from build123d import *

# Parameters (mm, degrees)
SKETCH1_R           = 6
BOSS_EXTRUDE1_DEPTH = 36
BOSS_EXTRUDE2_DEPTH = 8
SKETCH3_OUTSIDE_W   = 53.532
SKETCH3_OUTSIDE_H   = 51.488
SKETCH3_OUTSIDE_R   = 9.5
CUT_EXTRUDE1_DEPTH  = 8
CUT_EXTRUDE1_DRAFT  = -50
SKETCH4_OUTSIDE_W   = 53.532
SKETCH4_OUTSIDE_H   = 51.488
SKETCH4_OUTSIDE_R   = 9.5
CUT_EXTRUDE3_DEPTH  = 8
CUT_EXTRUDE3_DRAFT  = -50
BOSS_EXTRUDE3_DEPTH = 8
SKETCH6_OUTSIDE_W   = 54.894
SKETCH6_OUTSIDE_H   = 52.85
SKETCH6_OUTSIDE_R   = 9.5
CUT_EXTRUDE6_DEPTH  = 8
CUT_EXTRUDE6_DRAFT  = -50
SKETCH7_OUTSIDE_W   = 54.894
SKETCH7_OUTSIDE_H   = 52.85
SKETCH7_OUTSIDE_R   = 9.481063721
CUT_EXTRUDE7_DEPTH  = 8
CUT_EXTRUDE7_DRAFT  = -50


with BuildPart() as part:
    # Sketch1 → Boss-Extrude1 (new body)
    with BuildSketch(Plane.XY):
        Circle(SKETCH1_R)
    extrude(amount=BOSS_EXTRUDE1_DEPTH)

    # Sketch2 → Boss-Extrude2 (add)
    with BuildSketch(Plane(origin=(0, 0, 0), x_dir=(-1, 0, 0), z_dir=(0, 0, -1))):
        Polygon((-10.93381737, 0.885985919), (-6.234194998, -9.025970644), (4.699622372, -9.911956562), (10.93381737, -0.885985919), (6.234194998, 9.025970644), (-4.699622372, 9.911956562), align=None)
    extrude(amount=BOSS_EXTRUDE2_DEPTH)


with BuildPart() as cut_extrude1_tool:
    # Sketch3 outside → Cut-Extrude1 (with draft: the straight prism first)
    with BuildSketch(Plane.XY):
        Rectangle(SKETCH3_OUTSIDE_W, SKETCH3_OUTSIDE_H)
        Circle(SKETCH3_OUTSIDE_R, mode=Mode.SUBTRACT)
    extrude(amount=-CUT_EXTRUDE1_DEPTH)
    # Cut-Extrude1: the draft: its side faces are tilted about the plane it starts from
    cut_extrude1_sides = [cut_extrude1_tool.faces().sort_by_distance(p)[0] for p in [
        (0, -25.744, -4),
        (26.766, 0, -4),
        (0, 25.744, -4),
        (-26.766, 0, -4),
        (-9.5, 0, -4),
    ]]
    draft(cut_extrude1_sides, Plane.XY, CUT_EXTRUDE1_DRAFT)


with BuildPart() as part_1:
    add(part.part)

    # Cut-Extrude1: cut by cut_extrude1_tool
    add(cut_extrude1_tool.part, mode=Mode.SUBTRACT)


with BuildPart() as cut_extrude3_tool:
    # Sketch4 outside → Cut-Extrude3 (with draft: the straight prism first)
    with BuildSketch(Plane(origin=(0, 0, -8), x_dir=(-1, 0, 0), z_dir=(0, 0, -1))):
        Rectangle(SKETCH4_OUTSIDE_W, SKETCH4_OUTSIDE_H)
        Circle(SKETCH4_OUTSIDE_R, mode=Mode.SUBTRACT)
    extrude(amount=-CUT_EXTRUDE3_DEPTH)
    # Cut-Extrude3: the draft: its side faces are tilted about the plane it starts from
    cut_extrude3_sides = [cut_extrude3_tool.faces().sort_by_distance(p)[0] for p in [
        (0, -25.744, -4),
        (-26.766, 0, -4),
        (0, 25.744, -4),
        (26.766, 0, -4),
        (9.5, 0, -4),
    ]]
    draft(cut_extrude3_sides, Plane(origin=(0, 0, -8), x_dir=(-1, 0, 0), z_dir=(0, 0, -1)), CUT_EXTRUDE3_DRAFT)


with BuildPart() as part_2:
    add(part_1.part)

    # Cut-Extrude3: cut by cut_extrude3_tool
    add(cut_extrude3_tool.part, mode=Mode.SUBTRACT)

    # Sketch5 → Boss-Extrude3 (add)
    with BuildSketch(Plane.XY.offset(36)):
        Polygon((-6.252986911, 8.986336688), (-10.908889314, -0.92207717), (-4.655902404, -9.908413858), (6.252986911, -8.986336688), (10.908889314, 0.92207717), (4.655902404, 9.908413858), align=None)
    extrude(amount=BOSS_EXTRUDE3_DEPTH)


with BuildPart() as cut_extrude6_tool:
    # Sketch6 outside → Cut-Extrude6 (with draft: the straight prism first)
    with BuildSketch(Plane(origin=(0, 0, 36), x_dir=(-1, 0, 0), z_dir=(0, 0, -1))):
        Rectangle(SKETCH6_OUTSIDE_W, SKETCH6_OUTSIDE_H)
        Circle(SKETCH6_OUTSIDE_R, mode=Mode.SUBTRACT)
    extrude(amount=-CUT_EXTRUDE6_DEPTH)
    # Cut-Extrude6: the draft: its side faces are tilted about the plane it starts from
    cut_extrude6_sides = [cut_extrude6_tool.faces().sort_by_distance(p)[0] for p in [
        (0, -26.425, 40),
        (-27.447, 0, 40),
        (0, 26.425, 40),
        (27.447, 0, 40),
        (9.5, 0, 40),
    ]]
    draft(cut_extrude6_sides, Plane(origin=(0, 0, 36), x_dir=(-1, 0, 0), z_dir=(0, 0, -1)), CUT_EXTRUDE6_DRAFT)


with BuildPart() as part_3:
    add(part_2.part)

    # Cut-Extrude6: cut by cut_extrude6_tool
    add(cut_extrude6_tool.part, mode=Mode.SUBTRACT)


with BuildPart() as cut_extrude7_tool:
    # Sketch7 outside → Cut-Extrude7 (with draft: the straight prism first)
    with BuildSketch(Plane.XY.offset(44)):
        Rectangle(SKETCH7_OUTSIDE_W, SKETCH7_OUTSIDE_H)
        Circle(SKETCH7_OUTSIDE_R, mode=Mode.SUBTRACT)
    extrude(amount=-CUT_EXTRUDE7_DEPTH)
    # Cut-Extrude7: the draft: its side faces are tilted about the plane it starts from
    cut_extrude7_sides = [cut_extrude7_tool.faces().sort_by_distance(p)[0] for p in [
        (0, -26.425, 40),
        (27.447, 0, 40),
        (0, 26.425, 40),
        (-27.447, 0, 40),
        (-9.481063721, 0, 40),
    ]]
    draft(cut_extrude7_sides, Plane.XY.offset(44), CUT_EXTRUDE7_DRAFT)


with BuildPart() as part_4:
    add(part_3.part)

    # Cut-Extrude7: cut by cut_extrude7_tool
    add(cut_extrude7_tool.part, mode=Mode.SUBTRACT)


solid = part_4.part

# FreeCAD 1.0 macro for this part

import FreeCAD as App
import Part
import Sketcher
from FreeCAD import Vector


def faces_at(feature, points):
    """Names of the faces that lie closest to the given points."""
    faces = feature.Shape.Faces
    near = lambda p: min(range(len(faces)), key=lambda i: faces[i].distToShape(Part.Vertex(*p))[0])
    return sorted({f"Face{near(p) + 1}" for p in points})

doc = App.newDocument("Part")
body = doc.addObject("PartDesign::Body", "Body")

# Sketch on XY plane
sketch1 = body.newObject("Sketcher::SketchObject", "Sketch")
sketch1.AttachmentSupport = (doc.getObject("XY_Plane"), [""])
sketch1.MapMode = "FlatFace"
sketch1.addGeometry(Part.Circle(Vector(0, 0, 0), Vector(0, 0, 1), 6), False)
sketch1.addConstraint([
    Sketcher.Constraint("Coincident", 0, 3, -1, 1),
    Sketcher.Constraint("Diameter", 0, 12.0),
])
pad1 = body.newObject("PartDesign::Pad", "Pad")
pad1.Profile = sketch1
pad1.Length = 36

# Sketch on XY plane
sketch2 = body.newObject("Sketcher::SketchObject", "Sketch001")
sketch2.AttachmentSupport = (doc.getObject("XY_Plane"), [""])
sketch2.MapMode = "FlatFace"
sketch2.addGeometry([
    Part.LineSegment(Vector(11, 1, 0), Vector(6, -9, 0)),  # 0
    Part.LineSegment(Vector(6, -9, 0), Vector(-5, -10, 0)),  # 1
    Part.LineSegment(Vector(-5, -10, 0), Vector(-11, -1, 0)),  # 2
    Part.LineSegment(Vector(-11, -1, 0), Vector(-6, 9, 0)),  # 3
    Part.LineSegment(Vector(-6, 9, 0), Vector(5, 10, 0)),  # 4
    Part.LineSegment(Vector(5, 10, 0), Vector(11, 1, 0)),  # 5
], False)
sketch2.addConstraint([
    Sketcher.Constraint("Coincident", 0, 2, 1, 1),
    Sketcher.Constraint("Coincident", 1, 2, 2, 1),
    Sketcher.Constraint("Coincident", 2, 2, 3, 1),
    Sketcher.Constraint("Coincident", 3, 2, 4, 1),
    Sketcher.Constraint("Coincident", 4, 2, 5, 1),
    Sketcher.Constraint("Coincident", 5, 2, 0, 1),
    Sketcher.Constraint("Symmetric", 0, 2, 3, 2, -1, 1),
    Sketcher.Constraint("Symmetric", 1, 2, 4, 2, -1, 1),
    Sketcher.Constraint("Symmetric", 2, 2, 5, 2, -1, 1),
    Sketcher.Constraint("Equal", 0, 1),
    Sketcher.Constraint("Equal", 1, 2),
    Sketcher.Constraint("DistanceY", 0, 2, -1, 1, 9.025971),
    Sketcher.Constraint("DistanceY", 1, 2, 2, 2, 9.025971),
    Sketcher.Constraint("DistanceX", 3, 2, 0, 2, 12.46839),
    Sketcher.Constraint("DistanceX", 2, 2, 4, 2, 15.63344),
])
pad2 = body.newObject("PartDesign::Pad", "Pad001")
pad2.Profile = sketch2
pad2.Length = 8
pad2.Reversed = True
body2 = doc.addObject("PartDesign::Body", "Body001")

# Sketch on XY plane
sketch3 = body2.newObject("Sketcher::SketchObject", "Sketch002")
sketch3.AttachmentSupport = (doc.getObject("XY_Plane001"), [""])
sketch3.MapMode = "FlatFace"
sketch3.addGeometry([
    Part.LineSegment(Vector(-27, 26, 0), Vector(-27, -26, 0)),  # 0
    Part.LineSegment(Vector(-27, -26, 0), Vector(27, -26, 0)),  # 1
    Part.LineSegment(Vector(27, -26, 0), Vector(27, 26, 0)),  # 2
    Part.LineSegment(Vector(27, 26, 0), Vector(-27, 26, 0)),  # 3
    Part.Circle(Vector(0, 0, 0), Vector(0, 0, 1), 10),  # 4
], False)
sketch3.addConstraint([
    Sketcher.Constraint("Coincident", 0, 2, 1, 1),
    Sketcher.Constraint("Coincident", 1, 2, 2, 1),
    Sketcher.Constraint("Coincident", 2, 2, 3, 1),
    Sketcher.Constraint("Coincident", 3, 2, 0, 1),
    Sketcher.Constraint("Vertical", 0),
    Sketcher.Constraint("Horizontal", 1),
    Sketcher.Constraint("Vertical", 2),
    Sketcher.Constraint("Horizontal", 3),
    Sketcher.Constraint("Coincident", 4, 3, -1, 1),
    Sketcher.Constraint("Symmetric", 0, 2, 2, 2, -1, 1),
    Sketcher.Constraint("Diameter", 4, 19.0),
    Sketcher.Constraint("DistanceX", 1, 1, 1, 2, 53.532),
    Sketcher.Constraint("DistanceY", 0, 2, 0, 1, 51.488),
])
pad3 = body2.newObject("PartDesign::Pad", "Pad002")
pad3.Profile = sketch3
pad3.Length = 8
pad3.Reversed = True
doc.recompute()

draft = body2.newObject("PartDesign::Draft", "Draft")
draft.Base = (pad3, faces_at(pad3, [
    (0, -25.744, -4),
    (26.766, 0, -4),
    (0, 25.744, -4),
    (-26.766, 0, -4),
    (-9.5, 0, -4),
]))
draft.NeutralPlane = (doc.getObject("XY_Plane001"), [""])
draft.Angle = 50
draft.Reversed = True
doc.recompute()

boolean = body.newObject("PartDesign::Boolean", "Boolean")
boolean.Type = "Cut"
boolean.addObjects([body2])
body3 = doc.addObject("PartDesign::Body", "Body002")

# Sketch on XY plane
sketch4 = body3.newObject("Sketcher::SketchObject", "Sketch003")
sketch4.AttachmentSupport = (doc.getObject("XY_Plane002"), [""])
sketch4.MapMode = "FlatFace"
sketch4.AttachmentOffset = App.Placement(Vector(0, 0, -8), App.Rotation())
sketch4.addGeometry([
    Part.LineSegment(Vector(27, 26, 0), Vector(27, -26, 0)),  # 0
    Part.LineSegment(Vector(27, -26, 0), Vector(-27, -26, 0)),  # 1
    Part.LineSegment(Vector(-27, -26, 0), Vector(-27, 26, 0)),  # 2
    Part.LineSegment(Vector(-27, 26, 0), Vector(27, 26, 0)),  # 3
    Part.Circle(Vector(0, 0, 0), Vector(0, 0, 1), 10),  # 4
], False)
sketch4.addConstraint([
    Sketcher.Constraint("Coincident", 0, 2, 1, 1),
    Sketcher.Constraint("Coincident", 1, 2, 2, 1),
    Sketcher.Constraint("Coincident", 2, 2, 3, 1),
    Sketcher.Constraint("Coincident", 3, 2, 0, 1),
    Sketcher.Constraint("Vertical", 0),
    Sketcher.Constraint("Horizontal", 1),
    Sketcher.Constraint("Vertical", 2),
    Sketcher.Constraint("Horizontal", 3),
    Sketcher.Constraint("Coincident", 4, 3, -1, 1),
    Sketcher.Constraint("Symmetric", 0, 2, 2, 2, -1, 1),
    Sketcher.Constraint("Diameter", 4, 19.0),
    Sketcher.Constraint("DistanceX", 1, 2, 1, 1, 53.532),
    Sketcher.Constraint("DistanceY", 0, 2, 0, 1, 51.488),
])
pad4 = body3.newObject("PartDesign::Pad", "Pad003")
pad4.Profile = sketch4
pad4.Length = 8
doc.recompute()

datumplane = body3.newObject("PartDesign::Plane", "DatumPlane")
datumplane.AttachmentSupport = (doc.getObject("XY_Plane002"), [""])
datumplane.MapMode = "FlatFace"
datumplane.AttachmentOffset = App.Placement(Vector(0, 0, -8), App.Rotation())
draft2 = body3.newObject("PartDesign::Draft", "Draft001")
draft2.Base = (pad4, faces_at(pad4, [
    (0, -25.744, -4),
    (-26.766, 0, -4),
    (0, 25.744, -4),
    (26.766, 0, -4),
    (9.5, 0, -4),
]))
draft2.NeutralPlane = (datumplane, [""])
draft2.Angle = 50
draft2.Reversed = False
doc.recompute()

boolean2 = body.newObject("PartDesign::Boolean", "Boolean001")
boolean2.Type = "Cut"
boolean2.addObjects([body3])

# Sketch on XY plane
sketch5 = body.newObject("Sketcher::SketchObject", "Sketch004")
sketch5.AttachmentSupport = (doc.getObject("XY_Plane"), [""])
sketch5.MapMode = "FlatFace"
sketch5.AttachmentOffset = App.Placement(Vector(0, 0, 36), App.Rotation())
sketch5.addGeometry([
    Part.LineSegment(Vector(-6, 9, 0), Vector(-11, -1, 0)),  # 0
    Part.LineSegment(Vector(-11, -1, 0), Vector(-5, -10, 0)),  # 1
    Part.LineSegment(Vector(-5, -10, 0), Vector(6, -9, 0)),  # 2
    Part.LineSegment(Vector(6, -9, 0), Vector(11, 1, 0)),  # 3
    Part.LineSegment(Vector(11, 1, 0), Vector(5, 10, 0)),  # 4
    Part.LineSegment(Vector(5, 10, 0), Vector(-6, 9, 0)),  # 5
], False)
sketch5.addConstraint([
    Sketcher.Constraint("Coincident", 0, 2, 1, 1),
    Sketcher.Constraint("Coincident", 1, 2, 2, 1),
    Sketcher.Constraint("Coincident", 2, 2, 3, 1),
    Sketcher.Constraint("Coincident", 3, 2, 4, 1),
    Sketcher.Constraint("Coincident", 4, 2, 5, 1),
    Sketcher.Constraint("Coincident", 5, 2, 0, 1),
    Sketcher.Constraint("Symmetric", 0, 2, 3, 2, -1, 1),
    Sketcher.Constraint("Symmetric", 1, 2, 4, 2, -1, 1),
    Sketcher.Constraint("Symmetric", 2, 2, 5, 2, -1, 1),
    Sketcher.Constraint("Equal", 0, 1),
    Sketcher.Constraint("Equal", 1, 2),
    Sketcher.Constraint("Distance", 0, 10.947789),
    Sketcher.Constraint("DistanceX", 0, 2, -1, 1, 10.908889),
    Sketcher.Constraint("DistanceX", 1, 2, 2, 2, 10.908889),
    Sketcher.Constraint("DistanceY", 2, 2, 0, 2, 8.06426),
])
pad5 = body.newObject("PartDesign::Pad", "Pad004")
pad5.Profile = sketch5
pad5.Length = 8
body4 = doc.addObject("PartDesign::Body", "Body003")

# Sketch on XY plane
sketch6 = body4.newObject("Sketcher::SketchObject", "Sketch005")
sketch6.AttachmentSupport = (doc.getObject("XY_Plane003"), [""])
sketch6.MapMode = "FlatFace"
sketch6.AttachmentOffset = App.Placement(Vector(0, 0, 36), App.Rotation())
sketch6.addGeometry([
    Part.LineSegment(Vector(27, 26, 0), Vector(27, -26, 0)),  # 0
    Part.LineSegment(Vector(27, -26, 0), Vector(-27, -26, 0)),  # 1
    Part.LineSegment(Vector(-27, -26, 0), Vector(-27, 26, 0)),  # 2
    Part.LineSegment(Vector(-27, 26, 0), Vector(27, 26, 0)),  # 3
    Part.Circle(Vector(0, 0, 0), Vector(0, 0, 1), 10),  # 4
], False)
sketch6.addConstraint([
    Sketcher.Constraint("Coincident", 0, 2, 1, 1),
    Sketcher.Constraint("Coincident", 1, 2, 2, 1),
    Sketcher.Constraint("Coincident", 2, 2, 3, 1),
    Sketcher.Constraint("Coincident", 3, 2, 0, 1),
    Sketcher.Constraint("Vertical", 0),
    Sketcher.Constraint("Horizontal", 1),
    Sketcher.Constraint("Vertical", 2),
    Sketcher.Constraint("Horizontal", 3),
    Sketcher.Constraint("Coincident", 4, 3, -1, 1),
    Sketcher.Constraint("Symmetric", 0, 2, 2, 2, -1, 1),
    Sketcher.Constraint("Diameter", 4, 19.0),
    Sketcher.Constraint("DistanceY", 0, 2, 0, 1, 52.85),
    Sketcher.Constraint("DistanceX", 1, 2, 1, 1, 54.894),
])
pad6 = body4.newObject("PartDesign::Pad", "Pad005")
pad6.Profile = sketch6
pad6.Length = 8
doc.recompute()

datumplane2 = body4.newObject("PartDesign::Plane", "DatumPlane001")
datumplane2.AttachmentSupport = (doc.getObject("XY_Plane003"), [""])
datumplane2.MapMode = "FlatFace"
datumplane2.AttachmentOffset = App.Placement(Vector(0, 0, 36), App.Rotation())
draft3 = body4.newObject("PartDesign::Draft", "Draft002")
draft3.Base = (pad6, faces_at(pad6, [
    (0, -26.425, 40),
    (-27.447, 0, 40),
    (0, 26.425, 40),
    (27.447, 0, 40),
    (9.5, 0, 40),
]))
draft3.NeutralPlane = (datumplane2, [""])
draft3.Angle = 50
draft3.Reversed = False
doc.recompute()

boolean3 = body.newObject("PartDesign::Boolean", "Boolean002")
boolean3.Type = "Cut"
boolean3.addObjects([body4])
body5 = doc.addObject("PartDesign::Body", "Body004")

# Sketch on XY plane
sketch7 = body5.newObject("Sketcher::SketchObject", "Sketch006")
sketch7.AttachmentSupport = (doc.getObject("XY_Plane004"), [""])
sketch7.MapMode = "FlatFace"
sketch7.AttachmentOffset = App.Placement(Vector(0, 0, 44), App.Rotation())
sketch7.addGeometry([
    Part.LineSegment(Vector(-27, 26, 0), Vector(-27, -26, 0)),  # 0
    Part.LineSegment(Vector(-27, -26, 0), Vector(27, -26, 0)),  # 1
    Part.LineSegment(Vector(27, -26, 0), Vector(27, 26, 0)),  # 2
    Part.LineSegment(Vector(27, 26, 0), Vector(-27, 26, 0)),  # 3
    Part.Circle(Vector(0, 0, 0), Vector(0, 0, 1), 9),  # 4
], False)
sketch7.addConstraint([
    Sketcher.Constraint("Coincident", 0, 2, 1, 1),
    Sketcher.Constraint("Coincident", 1, 2, 2, 1),
    Sketcher.Constraint("Coincident", 2, 2, 3, 1),
    Sketcher.Constraint("Coincident", 3, 2, 0, 1),
    Sketcher.Constraint("Vertical", 0),
    Sketcher.Constraint("Horizontal", 1),
    Sketcher.Constraint("Vertical", 2),
    Sketcher.Constraint("Horizontal", 3),
    Sketcher.Constraint("Coincident", 4, 3, -1, 1),
    Sketcher.Constraint("Symmetric", 0, 2, 2, 2, -1, 1),
    Sketcher.Constraint("DistanceY", 0, 2, 0, 1, 52.85),
    Sketcher.Constraint("DistanceX", 1, 1, 1, 2, 54.894),
    Sketcher.Constraint("Diameter", 4, 18.962127),
])
pad7 = body5.newObject("PartDesign::Pad", "Pad006")
pad7.Profile = sketch7
pad7.Length = 8
pad7.Reversed = True
doc.recompute()

datumplane3 = body5.newObject("PartDesign::Plane", "DatumPlane002")
datumplane3.AttachmentSupport = (doc.getObject("XY_Plane004"), [""])
datumplane3.MapMode = "FlatFace"
datumplane3.AttachmentOffset = App.Placement(Vector(0, 0, 44), App.Rotation())
draft4 = body5.newObject("PartDesign::Draft", "Draft003")
draft4.Base = (pad7, faces_at(pad7, [
    (0, -26.425, 40),
    (27.447, 0, 40),
    (0, 26.425, 40),
    (-27.447, 0, 40),
    (-9.481, 0, 40),
]))
draft4.NeutralPlane = (datumplane3, [""])
draft4.Angle = 50
draft4.Reversed = True
doc.recompute()

boolean4 = body.newObject("PartDesign::Boolean", "Boolean003")
boolean4.Type = "Cut"
boolean4.addObjects([body5])

doc.recompute()
